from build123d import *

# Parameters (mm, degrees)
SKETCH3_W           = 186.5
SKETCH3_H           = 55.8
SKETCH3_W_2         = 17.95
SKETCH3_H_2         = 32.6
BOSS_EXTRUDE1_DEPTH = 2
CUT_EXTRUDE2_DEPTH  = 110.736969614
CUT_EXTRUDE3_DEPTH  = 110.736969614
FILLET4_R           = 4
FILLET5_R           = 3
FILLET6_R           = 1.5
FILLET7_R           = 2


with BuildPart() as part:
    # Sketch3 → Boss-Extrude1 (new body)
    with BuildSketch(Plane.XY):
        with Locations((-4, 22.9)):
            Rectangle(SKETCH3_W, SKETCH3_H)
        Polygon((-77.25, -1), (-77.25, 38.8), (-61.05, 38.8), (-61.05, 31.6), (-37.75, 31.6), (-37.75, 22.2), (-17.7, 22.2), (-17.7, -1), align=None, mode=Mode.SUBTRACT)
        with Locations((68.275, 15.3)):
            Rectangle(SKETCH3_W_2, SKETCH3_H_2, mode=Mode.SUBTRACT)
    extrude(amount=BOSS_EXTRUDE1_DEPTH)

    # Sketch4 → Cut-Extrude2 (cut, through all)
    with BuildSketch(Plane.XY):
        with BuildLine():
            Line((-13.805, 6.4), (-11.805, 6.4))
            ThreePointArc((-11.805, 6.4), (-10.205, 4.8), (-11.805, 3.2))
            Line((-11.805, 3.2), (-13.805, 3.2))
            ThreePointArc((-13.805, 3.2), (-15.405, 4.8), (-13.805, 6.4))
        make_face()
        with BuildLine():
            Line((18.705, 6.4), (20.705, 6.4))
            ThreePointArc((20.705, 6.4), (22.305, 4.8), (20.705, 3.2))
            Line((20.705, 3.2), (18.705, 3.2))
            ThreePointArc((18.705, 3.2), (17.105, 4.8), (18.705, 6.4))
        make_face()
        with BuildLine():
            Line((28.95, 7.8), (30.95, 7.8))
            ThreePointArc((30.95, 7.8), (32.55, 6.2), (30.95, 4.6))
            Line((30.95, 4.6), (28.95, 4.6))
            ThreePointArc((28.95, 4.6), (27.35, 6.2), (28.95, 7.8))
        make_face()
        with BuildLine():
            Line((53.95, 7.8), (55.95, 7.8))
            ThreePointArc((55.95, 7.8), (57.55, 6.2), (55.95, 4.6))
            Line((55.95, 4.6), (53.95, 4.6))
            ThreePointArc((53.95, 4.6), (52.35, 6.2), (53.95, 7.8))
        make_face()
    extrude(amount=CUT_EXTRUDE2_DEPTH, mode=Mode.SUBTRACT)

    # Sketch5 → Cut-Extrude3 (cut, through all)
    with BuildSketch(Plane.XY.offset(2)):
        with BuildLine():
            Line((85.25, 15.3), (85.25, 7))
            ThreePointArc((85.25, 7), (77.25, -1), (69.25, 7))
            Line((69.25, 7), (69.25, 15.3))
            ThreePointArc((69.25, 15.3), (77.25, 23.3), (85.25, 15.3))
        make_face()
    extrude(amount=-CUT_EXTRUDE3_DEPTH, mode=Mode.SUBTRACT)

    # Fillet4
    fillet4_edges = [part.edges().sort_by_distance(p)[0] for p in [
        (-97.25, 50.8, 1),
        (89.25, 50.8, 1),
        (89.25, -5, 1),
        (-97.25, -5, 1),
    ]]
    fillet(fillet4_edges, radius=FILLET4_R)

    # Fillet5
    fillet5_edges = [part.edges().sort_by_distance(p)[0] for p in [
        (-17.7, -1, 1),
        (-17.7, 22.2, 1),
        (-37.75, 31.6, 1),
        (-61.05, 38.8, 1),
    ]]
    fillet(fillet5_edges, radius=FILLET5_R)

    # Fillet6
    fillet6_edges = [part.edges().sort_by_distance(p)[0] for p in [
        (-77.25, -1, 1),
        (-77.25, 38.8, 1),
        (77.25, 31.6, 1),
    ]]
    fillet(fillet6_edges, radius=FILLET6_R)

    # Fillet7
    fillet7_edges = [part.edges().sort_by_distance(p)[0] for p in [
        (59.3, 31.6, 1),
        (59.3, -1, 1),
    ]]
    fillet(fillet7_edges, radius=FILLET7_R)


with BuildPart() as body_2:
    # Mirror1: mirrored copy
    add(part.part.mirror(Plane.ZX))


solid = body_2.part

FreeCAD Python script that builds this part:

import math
import FreeCAD as App
import Part
import Sketcher
from FreeCAD import Vector
Q = App.Units.Quantity


def edges_at(feature, points):
    """Names of the edges that pass closest to the given points."""
    edges = feature.Shape.Edges
    near = lambda p: min(range(len(edges)), key=lambda i: edges[i].distToShape(Part.Vertex(*p))[0])
    return sorted({f"Edge{near(p) + 1}" for p in points})

doc = App.newDocument("Part")
body = doc.addObject("PartDesign::Body", "Body")

sketch1 = body.newObject("Sketcher::SketchObject", "Sketch")
sketch1.AttachmentSupport = (doc.getObject("XY_Plane"), [""])
sketch1.MapMode = "FlatFace"
sketch1.addGeometry([
    Part.LineSegment(Vector(-97, 51, 0), Vector(-97, -5, 0)),
    Part.LineSegment(Vector(-97, -5, 0), Vector(89, -5, 0)),
    Part.LineSegment(Vector(89, -5, 0), Vector(89, 51, 0)),
    Part.LineSegment(Vector(89, 51, 0), Vector(-97, 51, 0)),
    Part.LineSegment(Vector(77, -1, 0), Vector(59, -1, 0)),
    Part.LineSegment(Vector(59, -1, 0), Vector(59, 32, 0)),
    Part.LineSegment(Vector(59, 32, 0), Vector(77, 32, 0)),
    Part.LineSegment(Vector(77, 32, 0), Vector(77, -1, 0)),
    Part.LineSegment(Vector(-18, -1, 0), Vector(-77, -1, 0)),
    Part.LineSegment(Vector(-77, -1, 0), Vector(-77, 39, 0)),
    Part.LineSegment(Vector(-77, 39, 0), Vector(-61, 39, 0)),
    Part.LineSegment(Vector(-61, 39, 0), Vector(-61, 32, 0)),
    Part.LineSegment(Vector(-61, 32, 0), Vector(-38, 32, 0)),
    Part.LineSegment(Vector(-38, 32, 0), Vector(-38, 22, 0)),
    Part.LineSegment(Vector(-38, 22, 0), Vector(-18, 22, 0)),
    Part.LineSegment(Vector(-18, 22, 0), Vector(-18, -1, 0)),
], False)
sketch1.addConstraint([
    Sketcher.Constraint("Coincident", 0, 2, 1, 1),
    Sketcher.Constraint("Coincident", 1, 2, 2, 1),
    Sketcher.Constraint("Coincident", 2, 2, 3, 1),
    Sketcher.Constraint("Coincident", 3, 2, 0, 1),
    Sketcher.Constraint("Coincident", 4, 2, 5, 1),
    Sketcher.Constraint("Coincident", 5, 2, 6, 1),
    Sketcher.Constraint("Coincident", 6, 2, 7, 1),
    Sketcher.Constraint("Coincident", 7, 2, 4, 1),
    Sketcher.Constraint("Coincident", 8, 2, 9, 1),
    Sketcher.Constraint("Coincident", 9, 2, 10, 1),
    Sketcher.Constraint("Coincident", 10, 2, 11, 1),
    Sketcher.Constraint("Coincident", 11, 2, 12, 1),
    Sketcher.Constraint("Coincident", 12, 2, 13, 1),
    Sketcher.Constraint("Coincident", 13, 2, 14, 1),
    Sketcher.Constraint("Coincident", 14, 2, 15, 1),
    Sketcher.Constraint("Coincident", 15, 2, 8, 1),
    Sketcher.Constraint("Vertical", 0),
    Sketcher.Constraint("Horizontal", 1),
    Sketcher.Constraint("Vertical", 2),
    Sketcher.Constraint("Horizontal", 3),
    Sketcher.Constraint("Horizontal", 4),
    Sketcher.Constraint("Vertical", 5),
    Sketcher.Constraint("Horizontal", 6),
    Sketcher.Constraint("Vertical", 7),
    Sketcher.Constraint("Horizontal", 8),
    Sketcher.Constraint("Vertical", 9),
    Sketcher.Constraint("Horizontal", 10),
    Sketcher.Constraint("Vertical", 11),
    Sketcher.Constraint("Horizontal", 12),
    Sketcher.Constraint("Vertical", 13),
    Sketcher.Constraint("Horizontal", 14),
    Sketcher.Constraint("Vertical", 15),
    Sketcher.Constraint("Symmetric", 7, 2, 8, 2, -2),
    Sketcher.Constraint("Horizontal", 6, 2, 11, 2),
    Sketcher.Constraint("DistanceX", 1, 1, 1, 2, Q("186.5 mm")),
    Sketcher.Constraint("DistanceX", 10, 1, 10, 2, Q("16.2 mm")),
    Sketcher.Constraint("DistanceX", 12, 1, 12, 2, Q("23.3 mm")),
    Sketcher.Constraint("DistanceY", 0, 2, 0, 1, Q("55.8 mm")),
    Sketcher.Constraint("DistanceY", 5, 1, 5, 2, Q("32.6 mm")),
    Sketcher.Constraint("DistanceY", 9, 1, 9, 2, Q("39.8 mm")),
    Sketcher.Constraint("DistanceY", 13, 2, 13, 1, Q("9.4 mm")),
    Sketcher.Constraint("DistanceY", 0, 2, -1, 1, Q("5 mm")),
    Sketcher.Constraint("DistanceY", 4, 2, -1, 1, Q("1 mm")),
    Sketcher.Constraint("DistanceX", 6, 2, 2, 2, Q("12 mm")),
    Sketcher.Constraint("DistanceX", 0, 2, 8, 2, Q("20 mm")),
    Sketcher.Constraint("DistanceX", 4, 2, 4, 1, Q("17.95 mm")),
    Sketcher.Constraint("DistanceX", 8, 2, 8, 1, Q("59.55 mm")),
])
pad1 = body.newObject("PartDesign::Pad", "Pad")
pad1.Profile = sketch1
pad1.Length = 2

sketch2 = body.newObject("Sketcher::SketchObject", "Sketch001")
sketch2.AttachmentSupport = (doc.getObject("XY_Plane"), [""])
sketch2.MapMode = "FlatFace"
sketch2.addGeometry([
    Part.LineSegment(Vector(-11.8, 6.4, 0), Vector(-13.8, 6.4, 0)),
    Part.ArcOfCircle(Part.Circle(Vector(-13.8, 4.8, 0), Vector(0, 0, 1), 1.6), math.radians(90), math.radians(270)),
    Part.LineSegment(Vector(-13.8, 3.2, 0), Vector(-11.8, 3.2, 0)),
    Part.ArcOfCircle(Part.Circle(Vector(-11.8, 4.8, 0), Vector(0, 0, 1), 1.6), math.radians(-90), math.radians(90)),
    Part.LineSegment(Vector(20.7, 6.4, 0), Vector(18.7, 6.4, 0)),
    Part.ArcOfCircle(Part.Circle(Vector(18.7, 4.8, 0), Vector(0, 0, 1), 1.6), math.radians(90), math.radians(270)),
    Part.LineSegment(Vector(18.7, 3.2, 0), Vector(20.7, 3.2, 0)),
    Part.ArcOfCircle(Part.Circle(Vector(20.7, 4.8, 0), Vector(0, 0, 1), 1.6), math.radians(-90), math.radians(90)),
    Part.LineSegment(Vector(30.9, 7.8, 0), Vector(28.9, 7.8, 0)),
    Part.ArcOfCircle(Part.Circle(Vector(28.9, 6.2, 0), Vector(0, 0, 1), 1.6), math.radians(90), math.radians(270)),
    Part.LineSegment(Vector(28.9, 4.6, 0), Vector(30.9, 4.6, 0)),
    Part.ArcOfCircle(Part.Circle(Vector(30.9, 6.2, 0), Vector(0, 0, 1), 1.6), math.radians(-90), math.radians(90)),
    Part.LineSegment(Vector(56, 7.8, 0), Vector(54, 7.8, 0)),
    Part.ArcOfCircle(Part.Circle(Vector(54, 6.2, 0), Vector(0, 0, 1), 1.6), math.radians(90), math.radians(270)),
    Part.LineSegment(Vector(54, 4.6, 0), Vector(56, 4.6, 0)),
    Part.ArcOfCircle(Part.Circle(Vector(56, 6.2, 0), Vector(0, 0, 1), 1.6), math.radians(-90), math.radians(90)),
], False)
sketch2.addConstraint([
    Sketcher.Constraint("Tangent", 0, 2, 1, 1),
    Sketcher.Constraint("Tangent", 1, 2, 2, 1),
    Sketcher.Constraint("Tangent", 2, 2, 3, 1),
    Sketcher.Constraint("Tangent", 3, 2, 0, 1),
    Sketcher.Constraint("Tangent", 4, 2, 5, 1),
    Sketcher.Constraint("Tangent", 5, 2, 6, 1),
    Sketcher.Constraint("Tangent", 6, 2, 7, 1),
    Sketcher.Constraint("Tangent", 7, 2, 4, 1),
    Sketcher.Constraint("Tangent", 8, 2, 9, 1),
    Sketcher.Constraint("Tangent", 9, 2, 10, 1),
    Sketcher.Constraint("Tangent", 10, 2, 11, 1),
    Sketcher.Constraint("Tangent", 11, 2, 8, 1),
    Sketcher.Constraint("Tangent", 12, 2, 13, 1),
    Sketcher.Constraint("Tangent", 13, 2, 14, 1),
    Sketcher.Constraint("Tangent", 14, 2, 15, 1),
    Sketcher.Constraint("Tangent", 15, 2, 12, 1),
    Sketcher.Constraint("Horizontal", 0),
    Sketcher.Constraint("Horizontal", 2),
    Sketcher.Constraint("Horizontal", 4),
    Sketcher.Constraint("Horizontal", 6),
    Sketcher.Constraint("Horizontal", 8),
    Sketcher.Constraint("Horizontal", 10),
    Sketcher.Constraint("Horizontal", 12),
    Sketcher.Constraint("Horizontal", 14),
    Sketcher.Constraint("Equal", 3, 5),
    Sketcher.Constraint("Equal", 7, 9),
    Sketcher.Constraint("Equal", 11, 13),
    Sketcher.Constraint("Horizontal", 3, 3, 5, 3),
    Sketcher.Constraint("Horizontal", 11, 3, 13, 3),
    Sketcher.Constraint("Equal", 2, 4),
    Sketcher.Constraint("Equal", 6, 8),
    Sketcher.Constraint("Equal", 10, 12),
    Sketcher.Constraint("Radius", 1, Q("1.6 mm")),
    Sketcher.Constraint("DistanceX", 0, 2, 0, 1, Q("2 mm")),
    Sketcher.Constraint("DistanceX", 11, 3, 13, 3, Q("23 mm")),
    Sketcher.Constraint("DistanceY", 5, 2, 9, 3, Q("3 mm")),
    Sketcher.Constraint("DistanceY", -1, 1, 1, 3, Q("4.8 mm")),
    Sketcher.Constraint("DistanceX", -1, 1, 9, 3, Q("28.95 mm")),
    Sketcher.Constraint("DistanceX", 3, 3, 5, 3, Q("30.51 mm")),
    Sketcher.Constraint("DistanceX", 1, 3, -1, 1, Q("13.805 mm")),
])
pocket1 = body.newObject("PartDesign::Pocket", "Pocket")
pocket1.Profile = sketch2
pocket1.Type = "ThroughAll"
pocket1.Reversed = True

sketch3 = body.newObject("Sketcher::SketchObject", "Sketch002")
sketch3.AttachmentSupport = (doc.getObject("XY_Plane"), [""])
sketch3.MapMode = "FlatFace"
sketch3.AttachmentOffset = App.Placement(Vector(0, 0, 2), App.Rotation())
sketch3.addGeometry([
    Part.LineSegment(Vector(85, 7, 0), Vector(85, 15, 0)),
    Part.ArcOfCircle(Part.Circle(Vector(77, 15, 0), Vector(0, 0, 1), 8), math.radians(0), math.radians(180)),
    Part.LineSegment(Vector(69, 15, 0), Vector(69, 7, 0)),
    Part.ArcOfCircle(Part.Circle(Vector(77, 7, 0), Vector(0, 0, 1), 8), math.radians(180), math.radians(360)),
], False)
sketch3.addConstraint([
    Sketcher.Constraint("Tangent", 0, 2, 1, 1),
    Sketcher.Constraint("Tangent", 1, 2, 2, 1),
    Sketcher.Constraint("Tangent", 2, 2, 3, 1),
    Sketcher.Constraint("Tangent", 3, 2, 0, 1),
    Sketcher.Constraint("Vertical", 0),
    Sketcher.Constraint("Vertical", 2),
    Sketcher.Constraint("Radius", 1, Q("8 mm")),
    Sketcher.Constraint("DistanceY", 0, 1, 0, 2, Q("8.3 mm")),
    Sketcher.Constraint("DistanceY", -1, 1, 3, 3, Q("7 mm")),
    Sketcher.Constraint("DistanceX", -1, 1, 1, 3, Q("77.25 mm")),
])
pocket2 = body.newObject("PartDesign::Pocket", "Pocket001")
pocket2.Profile = sketch3
pocket2.Type = "ThroughAll"
doc.recompute()

fillet = body.newObject("PartDesign::Fillet", "Fillet")
fillet.Base = (pocket2, edges_at(pocket2, [
    (-97.25, 50.8, 1),
    (89.25, 50.8, 1),
    (89.25, -5, 1),
    (-97.25, -5, 1),
]))
fillet.Radius = 4
doc.recompute()

fillet2 = body.newObject("PartDesign::Fillet", "Fillet001")
fillet2.Base = (fillet, edges_at(fillet, [
    (-17.7, -1, 1),
    (-17.7, 22.2, 1),
    (-37.75, 31.6, 1),
    (-61.05, 38.8, 1),
]))
fillet2.Radius = 3
doc.recompute()

fillet3 = body.newObject("PartDesign::Fillet", "Fillet002")
fillet3.Base = (fillet2, edges_at(fillet2, [(-77.25, -1, 1), (-77.25, 38.8, 1), (77.25, 31.6, 1)]))
fillet3.Radius = 1.5
doc.recompute()

fillet4 = body.newObject("PartDesign::Fillet", "Fillet003")
fillet4.Base = (fillet3, edges_at(fillet3, [(59.3, 31.6, 1), (59.3, -1, 1)]))
fillet4.Radius = 2
body2 = doc.addObject("PartDesign::Body", "Body001")
doc.recompute()

mirroring = doc.addObject("Part::Mirroring", "Mirroring")
mirroring.Source = body
mirroring.Base = Vector(0, 0, 0)
mirroring.Normal = Vector(0, 1, 0)
body2.BaseFeature = mirroring
doc.recompute()
body.Visibility = False
mirroring.Visibility = False

doc.recompute()
